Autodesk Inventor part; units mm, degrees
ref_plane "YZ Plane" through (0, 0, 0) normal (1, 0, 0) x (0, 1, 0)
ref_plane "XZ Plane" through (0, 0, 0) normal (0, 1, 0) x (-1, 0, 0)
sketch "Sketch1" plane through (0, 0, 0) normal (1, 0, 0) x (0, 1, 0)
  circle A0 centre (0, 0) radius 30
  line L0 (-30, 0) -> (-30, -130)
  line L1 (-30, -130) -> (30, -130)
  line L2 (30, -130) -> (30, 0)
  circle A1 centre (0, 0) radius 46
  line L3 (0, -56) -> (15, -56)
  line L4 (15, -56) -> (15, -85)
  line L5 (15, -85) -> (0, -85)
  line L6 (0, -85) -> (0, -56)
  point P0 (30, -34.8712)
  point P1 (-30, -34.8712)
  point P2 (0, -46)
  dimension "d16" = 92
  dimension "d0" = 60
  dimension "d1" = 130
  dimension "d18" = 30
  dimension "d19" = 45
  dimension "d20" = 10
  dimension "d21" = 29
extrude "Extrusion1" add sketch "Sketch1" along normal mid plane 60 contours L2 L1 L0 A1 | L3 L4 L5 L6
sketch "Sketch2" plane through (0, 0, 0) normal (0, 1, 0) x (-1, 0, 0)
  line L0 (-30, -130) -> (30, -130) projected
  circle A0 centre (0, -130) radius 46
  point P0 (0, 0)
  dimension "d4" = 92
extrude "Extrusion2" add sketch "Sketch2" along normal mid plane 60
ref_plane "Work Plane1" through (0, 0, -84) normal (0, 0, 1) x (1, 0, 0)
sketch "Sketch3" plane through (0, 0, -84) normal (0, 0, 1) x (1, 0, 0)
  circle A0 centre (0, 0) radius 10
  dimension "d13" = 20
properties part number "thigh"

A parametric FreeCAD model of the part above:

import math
import FreeCAD as App
import Part
import Sketcher
Q = App.Units.Quantity

doc = App.newDocument("Part")
params = doc.addObject("Spreadsheet::Sheet", "Params")
for row, (alias, value) in enumerate([
    ("sketch1_radius", "46 mm"),
    ("sketch1_width", "60 mm"),
    ("pad1_length", "60 mm"),
    ("sketch2_diameter", "92 mm"),
    ("pad2_length", "60 mm"),
], start=1):
    params.set(f"A{row}", alias)
    params.set(f"B{row}", "=" + value)
    params.setAlias(f"B{row}", alias)

body = doc.addObject("PartDesign::Body", "Body")

sketch1 = body.newObject("Sketcher::SketchObject", "Sketch")
sketch1.AttachmentSupport = (doc.getObject("YZ_Plane"), [""])
sketch1.MapMode = "FlatFace"
sketch1.addGeometry([
    Part.LineSegment(App.Vector(30, -130, 0), App.Vector(30, -35, 0)),
    Part.ArcOfCircle(Part.Circle(App.Vector(0, 0, 0), App.Vector(0, 0, 1), 46), math.radians(-131), math.radians(-49)),
    Part.LineSegment(App.Vector(-30, -35, 0), App.Vector(-30, -130, 0)),
    Part.LineSegment(App.Vector(-30, -130, 0), App.Vector(30, -130, 0)),
], False)
sketch1.addConstraint([
    Sketcher.Constraint("Coincident", 0, 2, 1, 2),
    Sketcher.Constraint("Coincident", 1, 1, 2, 1),
    Sketcher.Constraint("Coincident", 2, 2, 3, 1),
    Sketcher.Constraint("Coincident", 3, 2, 0, 1),
    Sketcher.Constraint("Vertical", 0),
    Sketcher.Constraint("Vertical", 2),
    Sketcher.Constraint("Horizontal", 3),
    Sketcher.Constraint("Coincident", 1, 3, -1, 1),
    Sketcher.Constraint("Horizontal", 0, 2, 1, 1),
    Sketcher.Constraint("Radius", 1, Q("46 mm")),
    Sketcher.Constraint("DistanceX", 3, 1, 3, 2, Q("60 mm")),
    Sketcher.Constraint("DistanceY", 2, 2, -1, 1, Q("130 mm")),
])
sketch1.setExpression("Constraints[9]", "Params.sketch1_radius")
sketch1.setExpression("Constraints[10]", "Params.sketch1_width")
pad1 = body.newObject("PartDesign::Pad", "Pad")
pad1.Profile = sketch1
pad1.setExpression("Length", "Params.pad1_length")
pad1.Midplane = True

sketch2 = body.newObject("Sketcher::SketchObject", "Sketch001")
sketch2.AttachmentSupport = (doc.getObject("XZ_Plane"), [""])
sketch2.MapMode = "FlatFace"
sketch2.addGeometry(Part.Circle(App.Vector(0, -130, 0), App.Vector(0, 0, 1), 46), False)
sketch2.addConstraint([
    Sketcher.Constraint("PointOnObject", 0, 3, -2),
    Sketcher.Constraint("Diameter", 0, Q("92 mm")),
    Sketcher.Constraint("DistanceY", 0, 3, -1, 1, Q("130 mm")),
])
sketch2.setExpression("Constraints[1]", "Params.sketch2_diameter")
pad2 = body.newObject("PartDesign::Pad", "Pad001")
pad2.Profile = sketch2
pad2.setExpression("Length", "Params.pad2_length")
pad2.Midplane = True

doc.recompute()
